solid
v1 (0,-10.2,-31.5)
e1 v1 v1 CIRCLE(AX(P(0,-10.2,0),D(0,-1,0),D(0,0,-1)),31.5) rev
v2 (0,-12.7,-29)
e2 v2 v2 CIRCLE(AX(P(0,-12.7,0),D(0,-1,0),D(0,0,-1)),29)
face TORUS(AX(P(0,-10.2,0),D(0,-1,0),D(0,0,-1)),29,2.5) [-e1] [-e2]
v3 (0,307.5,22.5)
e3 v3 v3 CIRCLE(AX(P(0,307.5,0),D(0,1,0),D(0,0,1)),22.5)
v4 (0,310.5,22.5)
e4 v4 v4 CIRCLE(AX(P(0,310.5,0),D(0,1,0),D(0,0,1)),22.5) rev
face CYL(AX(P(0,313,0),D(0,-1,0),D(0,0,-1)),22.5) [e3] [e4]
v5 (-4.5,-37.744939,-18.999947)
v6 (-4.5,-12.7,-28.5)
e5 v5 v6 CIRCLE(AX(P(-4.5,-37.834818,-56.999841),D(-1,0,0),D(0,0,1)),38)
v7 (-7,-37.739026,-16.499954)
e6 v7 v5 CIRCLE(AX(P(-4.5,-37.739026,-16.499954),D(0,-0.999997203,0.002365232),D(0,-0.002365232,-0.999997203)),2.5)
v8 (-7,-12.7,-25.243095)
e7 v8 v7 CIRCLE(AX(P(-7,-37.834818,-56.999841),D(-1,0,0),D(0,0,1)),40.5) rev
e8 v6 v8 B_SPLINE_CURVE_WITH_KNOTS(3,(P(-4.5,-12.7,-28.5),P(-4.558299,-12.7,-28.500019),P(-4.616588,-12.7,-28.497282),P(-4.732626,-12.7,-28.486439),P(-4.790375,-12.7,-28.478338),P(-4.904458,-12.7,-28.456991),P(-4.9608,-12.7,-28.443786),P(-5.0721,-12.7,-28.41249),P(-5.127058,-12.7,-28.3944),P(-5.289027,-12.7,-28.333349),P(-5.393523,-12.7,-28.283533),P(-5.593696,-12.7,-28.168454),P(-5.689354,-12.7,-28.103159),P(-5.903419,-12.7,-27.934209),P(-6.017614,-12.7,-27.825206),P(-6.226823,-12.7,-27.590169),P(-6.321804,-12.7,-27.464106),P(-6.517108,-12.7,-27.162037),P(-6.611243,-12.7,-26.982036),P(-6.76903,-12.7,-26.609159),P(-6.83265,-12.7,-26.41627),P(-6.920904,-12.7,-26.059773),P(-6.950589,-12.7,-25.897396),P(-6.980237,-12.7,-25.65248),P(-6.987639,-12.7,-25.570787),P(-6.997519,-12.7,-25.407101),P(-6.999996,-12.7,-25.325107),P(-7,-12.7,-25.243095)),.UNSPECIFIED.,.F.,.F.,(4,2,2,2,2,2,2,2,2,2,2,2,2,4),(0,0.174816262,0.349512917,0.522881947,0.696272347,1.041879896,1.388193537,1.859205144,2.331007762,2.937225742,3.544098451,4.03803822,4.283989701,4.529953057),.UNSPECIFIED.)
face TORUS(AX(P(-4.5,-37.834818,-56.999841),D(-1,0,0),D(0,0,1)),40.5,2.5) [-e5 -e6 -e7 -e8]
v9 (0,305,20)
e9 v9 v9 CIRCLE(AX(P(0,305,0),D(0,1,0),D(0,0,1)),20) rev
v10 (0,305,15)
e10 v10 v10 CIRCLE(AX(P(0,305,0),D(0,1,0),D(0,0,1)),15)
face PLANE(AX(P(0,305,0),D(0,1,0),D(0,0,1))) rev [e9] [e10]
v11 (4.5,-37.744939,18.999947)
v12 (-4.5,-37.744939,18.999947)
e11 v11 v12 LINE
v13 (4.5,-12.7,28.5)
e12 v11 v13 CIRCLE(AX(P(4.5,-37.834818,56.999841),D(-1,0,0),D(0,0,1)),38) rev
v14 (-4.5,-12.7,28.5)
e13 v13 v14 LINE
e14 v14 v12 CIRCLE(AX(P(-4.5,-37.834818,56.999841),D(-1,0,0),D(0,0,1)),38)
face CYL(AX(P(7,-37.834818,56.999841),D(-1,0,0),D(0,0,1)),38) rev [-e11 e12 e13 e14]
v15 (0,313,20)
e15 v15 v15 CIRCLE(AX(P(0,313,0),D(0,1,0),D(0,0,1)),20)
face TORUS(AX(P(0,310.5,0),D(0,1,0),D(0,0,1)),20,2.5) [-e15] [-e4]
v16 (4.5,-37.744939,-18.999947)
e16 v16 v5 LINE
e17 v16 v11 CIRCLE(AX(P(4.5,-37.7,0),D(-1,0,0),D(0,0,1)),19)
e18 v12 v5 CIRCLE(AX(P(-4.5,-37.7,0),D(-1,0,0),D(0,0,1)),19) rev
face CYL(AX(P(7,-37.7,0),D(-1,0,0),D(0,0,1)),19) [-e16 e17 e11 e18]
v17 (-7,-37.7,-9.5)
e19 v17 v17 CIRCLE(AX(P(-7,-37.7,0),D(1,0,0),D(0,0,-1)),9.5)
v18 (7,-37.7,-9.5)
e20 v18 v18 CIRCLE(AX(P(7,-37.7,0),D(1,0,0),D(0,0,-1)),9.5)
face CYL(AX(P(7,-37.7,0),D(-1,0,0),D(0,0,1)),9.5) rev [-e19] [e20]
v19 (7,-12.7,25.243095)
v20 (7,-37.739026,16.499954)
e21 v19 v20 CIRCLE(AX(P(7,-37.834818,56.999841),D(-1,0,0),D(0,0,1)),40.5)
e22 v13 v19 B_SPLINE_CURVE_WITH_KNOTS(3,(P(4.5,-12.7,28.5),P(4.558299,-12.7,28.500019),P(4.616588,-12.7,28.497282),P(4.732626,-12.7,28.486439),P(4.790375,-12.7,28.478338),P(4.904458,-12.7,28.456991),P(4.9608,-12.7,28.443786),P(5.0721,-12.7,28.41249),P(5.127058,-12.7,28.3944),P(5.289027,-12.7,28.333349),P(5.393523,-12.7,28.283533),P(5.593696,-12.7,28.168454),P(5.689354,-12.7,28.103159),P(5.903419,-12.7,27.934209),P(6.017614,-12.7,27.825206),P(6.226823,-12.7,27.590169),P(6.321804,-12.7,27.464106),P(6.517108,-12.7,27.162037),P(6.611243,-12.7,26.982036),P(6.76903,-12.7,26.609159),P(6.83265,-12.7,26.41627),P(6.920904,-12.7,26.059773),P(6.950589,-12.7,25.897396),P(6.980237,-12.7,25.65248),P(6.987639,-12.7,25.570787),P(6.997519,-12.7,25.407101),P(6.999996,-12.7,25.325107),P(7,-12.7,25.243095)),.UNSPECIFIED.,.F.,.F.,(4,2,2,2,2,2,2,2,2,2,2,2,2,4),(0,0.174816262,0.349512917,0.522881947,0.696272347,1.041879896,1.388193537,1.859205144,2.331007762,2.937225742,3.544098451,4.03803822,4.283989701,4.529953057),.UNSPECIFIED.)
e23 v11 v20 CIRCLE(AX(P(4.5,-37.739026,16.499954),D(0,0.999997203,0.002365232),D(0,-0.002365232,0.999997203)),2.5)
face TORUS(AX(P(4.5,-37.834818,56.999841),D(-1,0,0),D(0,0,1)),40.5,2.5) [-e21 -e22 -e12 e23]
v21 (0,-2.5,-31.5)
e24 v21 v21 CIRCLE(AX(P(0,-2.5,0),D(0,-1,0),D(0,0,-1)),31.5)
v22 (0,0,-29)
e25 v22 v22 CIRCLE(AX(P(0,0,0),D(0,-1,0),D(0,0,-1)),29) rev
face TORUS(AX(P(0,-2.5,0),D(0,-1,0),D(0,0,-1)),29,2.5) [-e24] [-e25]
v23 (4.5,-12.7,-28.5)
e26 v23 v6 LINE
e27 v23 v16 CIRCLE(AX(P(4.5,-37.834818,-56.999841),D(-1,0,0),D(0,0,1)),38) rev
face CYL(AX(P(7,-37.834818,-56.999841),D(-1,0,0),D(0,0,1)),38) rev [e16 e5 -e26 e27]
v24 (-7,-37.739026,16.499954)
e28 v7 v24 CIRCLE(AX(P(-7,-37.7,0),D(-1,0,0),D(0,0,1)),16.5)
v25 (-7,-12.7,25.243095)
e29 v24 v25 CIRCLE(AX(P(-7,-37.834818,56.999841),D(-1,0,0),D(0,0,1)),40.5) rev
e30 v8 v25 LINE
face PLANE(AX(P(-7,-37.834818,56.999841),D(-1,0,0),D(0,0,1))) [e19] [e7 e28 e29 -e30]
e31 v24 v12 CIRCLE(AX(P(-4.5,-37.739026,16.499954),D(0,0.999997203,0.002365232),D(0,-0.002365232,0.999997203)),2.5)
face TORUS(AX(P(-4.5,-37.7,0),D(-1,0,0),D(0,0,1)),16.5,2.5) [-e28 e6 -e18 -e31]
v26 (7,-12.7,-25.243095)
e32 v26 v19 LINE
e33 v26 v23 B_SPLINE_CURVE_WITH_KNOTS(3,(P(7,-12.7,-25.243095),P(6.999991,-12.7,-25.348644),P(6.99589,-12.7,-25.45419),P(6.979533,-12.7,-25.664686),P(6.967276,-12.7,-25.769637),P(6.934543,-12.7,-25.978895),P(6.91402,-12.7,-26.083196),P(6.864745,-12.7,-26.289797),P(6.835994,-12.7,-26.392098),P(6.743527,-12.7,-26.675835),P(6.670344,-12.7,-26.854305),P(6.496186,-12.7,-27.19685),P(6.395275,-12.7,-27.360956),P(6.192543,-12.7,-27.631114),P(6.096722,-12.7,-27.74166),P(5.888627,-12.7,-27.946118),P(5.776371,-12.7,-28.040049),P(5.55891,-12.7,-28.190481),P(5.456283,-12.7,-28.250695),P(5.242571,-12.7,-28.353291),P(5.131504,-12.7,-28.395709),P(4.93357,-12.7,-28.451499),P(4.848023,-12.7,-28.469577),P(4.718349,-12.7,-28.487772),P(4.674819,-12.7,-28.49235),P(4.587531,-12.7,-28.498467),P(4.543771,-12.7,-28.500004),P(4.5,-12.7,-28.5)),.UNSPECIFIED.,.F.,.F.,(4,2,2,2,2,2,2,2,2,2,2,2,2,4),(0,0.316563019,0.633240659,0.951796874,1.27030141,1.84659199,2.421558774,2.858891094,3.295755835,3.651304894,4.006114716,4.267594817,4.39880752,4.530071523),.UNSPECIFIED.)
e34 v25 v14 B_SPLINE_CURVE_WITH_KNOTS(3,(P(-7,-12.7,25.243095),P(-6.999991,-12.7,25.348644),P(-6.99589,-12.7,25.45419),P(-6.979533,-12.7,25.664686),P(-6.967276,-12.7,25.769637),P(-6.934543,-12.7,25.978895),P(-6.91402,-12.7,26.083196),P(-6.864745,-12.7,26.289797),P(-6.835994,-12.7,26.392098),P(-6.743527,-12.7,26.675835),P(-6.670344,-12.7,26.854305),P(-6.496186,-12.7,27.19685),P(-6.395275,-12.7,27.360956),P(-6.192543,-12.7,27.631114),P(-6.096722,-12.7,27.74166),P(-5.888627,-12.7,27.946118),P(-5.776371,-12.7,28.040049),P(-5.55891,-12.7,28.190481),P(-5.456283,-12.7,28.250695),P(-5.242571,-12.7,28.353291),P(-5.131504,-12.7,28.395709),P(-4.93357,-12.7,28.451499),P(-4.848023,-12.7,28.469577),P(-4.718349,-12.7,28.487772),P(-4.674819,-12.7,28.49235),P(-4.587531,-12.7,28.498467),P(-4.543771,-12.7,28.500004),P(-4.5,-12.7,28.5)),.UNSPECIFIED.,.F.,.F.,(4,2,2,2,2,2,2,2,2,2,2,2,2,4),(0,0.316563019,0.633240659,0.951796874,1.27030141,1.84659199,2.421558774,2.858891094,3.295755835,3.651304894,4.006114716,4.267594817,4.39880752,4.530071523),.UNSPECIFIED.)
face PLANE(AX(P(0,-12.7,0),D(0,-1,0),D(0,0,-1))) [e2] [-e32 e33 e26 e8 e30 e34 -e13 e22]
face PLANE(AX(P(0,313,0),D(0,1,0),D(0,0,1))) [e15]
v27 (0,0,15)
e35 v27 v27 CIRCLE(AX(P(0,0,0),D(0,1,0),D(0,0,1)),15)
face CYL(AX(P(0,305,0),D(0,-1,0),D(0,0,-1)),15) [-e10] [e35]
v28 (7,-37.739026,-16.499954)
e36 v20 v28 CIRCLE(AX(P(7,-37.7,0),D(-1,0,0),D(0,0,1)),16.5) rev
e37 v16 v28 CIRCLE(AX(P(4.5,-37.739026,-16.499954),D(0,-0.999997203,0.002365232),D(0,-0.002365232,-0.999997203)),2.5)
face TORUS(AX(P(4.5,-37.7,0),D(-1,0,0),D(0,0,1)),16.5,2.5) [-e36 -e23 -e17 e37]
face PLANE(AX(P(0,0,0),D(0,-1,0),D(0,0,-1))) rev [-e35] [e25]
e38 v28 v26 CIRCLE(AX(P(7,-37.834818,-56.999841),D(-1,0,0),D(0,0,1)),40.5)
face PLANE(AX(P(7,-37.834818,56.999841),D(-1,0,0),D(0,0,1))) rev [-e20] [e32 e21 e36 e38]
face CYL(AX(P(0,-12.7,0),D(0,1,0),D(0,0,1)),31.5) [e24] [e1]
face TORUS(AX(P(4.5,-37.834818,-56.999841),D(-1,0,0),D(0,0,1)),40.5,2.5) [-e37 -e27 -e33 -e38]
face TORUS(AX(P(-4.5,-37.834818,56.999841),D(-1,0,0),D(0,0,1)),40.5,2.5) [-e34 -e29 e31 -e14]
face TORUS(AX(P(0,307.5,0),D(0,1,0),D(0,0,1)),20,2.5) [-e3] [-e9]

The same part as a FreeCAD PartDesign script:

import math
import FreeCAD as App
import Part
import Sketcher
from FreeCAD import Vector


def edges_at(feature, points):
    """Names of the edges that pass closest to the given points."""
    edges = feature.Shape.Edges
    near = lambda p: min(range(len(edges)), key=lambda i: edges[i].distToShape(Part.Vertex(*p))[0])
    return sorted({f"Edge{near(p) + 1}" for p in points})

doc = App.newDocument("Part")
params = doc.addObject("Spreadsheet::Sheet", "Params")
for row, (alias, value) in enumerate([
    ("sketch1_diameter", "30 mm"),
    ("pad1_length", "305 mm"),
    ("sketch2_diameter", "45 mm"),
    ("pad2_length", "8 mm"),
    ("sketch3_diameter", "63 mm"),
    ("pad3_length", "12.7 mm"),
    ("sketch4_diameter", "19 mm"),
    ("sketch4_radius", "38 mm"),
    ("sketch4_radius2", "19 mm"),
    ("sketch4_height", "57 mm"),
    ("pad4_length", "14 mm"),
    ("fillet_radius", "2.5 mm"),
    ("fillet2_radius", "2.5 mm"),
    ("fillet3_radius", "2.5 mm"),
], start=1):
    params.set(f"A{row}", alias)
    params.set(f"B{row}", "=" + value)
    params.setAlias(f"B{row}", alias)

body = doc.addObject("PartDesign::Body", "Body")

# Sketch on XZ plane
sketch1 = doc.addObject("Sketcher::SketchObject", "Sketch")
body.addObject(sketch1)
sketch1.AttachmentSupport = (doc.XZ_Plane, [""])
sketch1.MapMode = "FlatFace"
sketch1.addGeometry(Part.Circle(Vector(0, 0, 0), Vector(0, 0, 1), 15), False)
sketch1.addConstraint([
    Sketcher.Constraint("Coincident", 0, 3, -1, 1),
    Sketcher.Constraint("Diameter", 0, 30.0),
])
sketch1.setExpression("Constraints[1]", "Params.sketch1_diameter")
pad1 = doc.addObject("PartDesign::Pad", "Pad")
body.addObject(pad1)
pad1.Profile = sketch1
pad1.setExpression("Length", "Params.pad1_length")
pad1.Reversed = True

# Sketch on XZ plane
sketch2 = doc.addObject("Sketcher::SketchObject", "Sketch001")
body.addObject(sketch2)
sketch2.AttachmentSupport = (doc.XZ_Plane, [""])
sketch2.MapMode = "FlatFace"
sketch2.AttachmentOffset = App.Placement(Vector(0, 0, -305), App.Rotation())
sketch2.addGeometry(Part.Circle(Vector(0, 0, 0), Vector(0, 0, 1), 22), False)
sketch2.addConstraint([
    Sketcher.Constraint("Coincident", 0, 3, -1, 1),
    Sketcher.Constraint("Diameter", 0, 45.0),
])
sketch2.setExpression("Constraints[1]", "Params.sketch2_diameter")
pad2 = doc.addObject("PartDesign::Pad", "Pad001")
body.addObject(pad2)
pad2.Profile = sketch2
pad2.setExpression("Length", "Params.pad2_length")
pad2.Reversed = True

# Sketch on XZ plane
sketch3 = doc.addObject("Sketcher::SketchObject", "Sketch002")
body.addObject(sketch3)
sketch3.AttachmentSupport = (doc.XZ_Plane, [""])
sketch3.MapMode = "FlatFace"
sketch3.addGeometry(Part.Circle(Vector(0, 0, 0), Vector(0, 0, 1), 32), False)
sketch3.addConstraint([
    Sketcher.Constraint("Coincident", 0, 3, -1, 1),
    Sketcher.Constraint("Diameter", 0, 63.0),
])
sketch3.setExpression("Constraints[1]", "Params.sketch3_diameter")
pad3 = doc.addObject("PartDesign::Pad", "Pad002")
body.addObject(pad3)
pad3.Profile = sketch3
pad3.setExpression("Length", "Params.pad3_length")

# Sketch on YZ plane
sketch4 = doc.addObject("Sketcher::SketchObject", "Sketch003")
body.addObject(sketch4)
sketch4.AttachmentSupport = (doc.YZ_Plane, [""])
sketch4.MapMode = "FlatFace"
sketch4.addGeometry([
    Part.LineSegment(Vector(-13, -28, 0), Vector(-13, 28, 0)),  # 0
    Part.ArcOfCircle(Part.Circle(Vector(-38, 57, 0), Vector(0, 0, 1), 38), math.radians(-90), math.radians(-49)),  # 1
    Part.ArcOfCircle(Part.Circle(Vector(-38, 0, 0), Vector(0, 0, 1), 19), math.radians(90), math.radians(270)),  # 2
    Part.ArcOfCircle(Part.Circle(Vector(-38, -57, 0), Vector(0, 0, 1), 38), math.radians(49), math.radians(90)),  # 3
    Part.Circle(Vector(-38, 0, 0), Vector(0, 0, 1), 10),  # 4
], False)
sketch4.addConstraint([
    Sketcher.Constraint("Coincident", 0, 2, 1, 2),
    Sketcher.Constraint("Tangent", 1, 1, 2, 1),
    Sketcher.Constraint("Tangent", 2, 2, 3, 2),
    Sketcher.Constraint("Coincident", 3, 1, 0, 1),
    Sketcher.Constraint("Vertical", 0),
    Sketcher.Constraint("Coincident", 4, 3, 2, 3),
    Sketcher.Constraint("Equal", 1, 3),
    Sketcher.Constraint("Symmetric", 1, 3, 3, 3, -1),
    Sketcher.Constraint("Diameter", 4, 19.0),
    Sketcher.Constraint("Radius", 1, 38.0),
    Sketcher.Constraint("Radius", 2, 19.0),
    Sketcher.Constraint("DistanceY", 0, 1, 0, 2, 57.0),
    Sketcher.Constraint("DistanceX", 2, 3, 0, 2, 25.0),
    Sketcher.Constraint("DistanceX", 2, 3, -1, 1, 37.7),
])
sketch4.setExpression("Constraints[8]", "Params.sketch4_diameter")
sketch4.setExpression("Constraints[9]", "Params.sketch4_radius")
sketch4.setExpression("Constraints[10]", "Params.sketch4_radius2")
sketch4.setExpression("Constraints[11]", "Params.sketch4_height")
pad4 = doc.addObject("PartDesign::Pad", "Pad003")
body.addObject(pad4)
pad4.Profile = sketch4
pad4.setExpression("Length", "Params.pad4_length")
pad4.Midplane = True
doc.recompute()

fillet = doc.addObject("PartDesign::Fillet", "Fillet")
body.addObject(fillet)
fillet.Base = (pad4, edges_at(pad4, [
    (7, -24.358, 21.47),
    (7, -56.7, 0),
    (7, -24.358, -21.47),
    (0, 305, -22.5),
    (0, 313, -22.5),
]))
fillet.setExpression("Radius", "Params.fillet_radius")
doc.recompute()

fillet2 = doc.addObject("PartDesign::Fillet", "Fillet001")
body.addObject(fillet2)
fillet2.Base = (fillet, edges_at(fillet, [(-7, -24.358, 21.47), (-7, -56.7, 0), (-7, -24.358, -21.47)]))
fillet2.setExpression("Radius", "Params.fillet2_radius")
doc.recompute()

fillet3 = doc.addObject("PartDesign::Fillet", "Fillet002")
body.addObject(fillet3)
fillet3.Base = (fillet2, edges_at(fillet2, [(0, 0, 31.5), (0, -12.7, 31.5)]))
fillet3.setExpression("Radius", "Params.fillet3_radius")

doc.recompute()
